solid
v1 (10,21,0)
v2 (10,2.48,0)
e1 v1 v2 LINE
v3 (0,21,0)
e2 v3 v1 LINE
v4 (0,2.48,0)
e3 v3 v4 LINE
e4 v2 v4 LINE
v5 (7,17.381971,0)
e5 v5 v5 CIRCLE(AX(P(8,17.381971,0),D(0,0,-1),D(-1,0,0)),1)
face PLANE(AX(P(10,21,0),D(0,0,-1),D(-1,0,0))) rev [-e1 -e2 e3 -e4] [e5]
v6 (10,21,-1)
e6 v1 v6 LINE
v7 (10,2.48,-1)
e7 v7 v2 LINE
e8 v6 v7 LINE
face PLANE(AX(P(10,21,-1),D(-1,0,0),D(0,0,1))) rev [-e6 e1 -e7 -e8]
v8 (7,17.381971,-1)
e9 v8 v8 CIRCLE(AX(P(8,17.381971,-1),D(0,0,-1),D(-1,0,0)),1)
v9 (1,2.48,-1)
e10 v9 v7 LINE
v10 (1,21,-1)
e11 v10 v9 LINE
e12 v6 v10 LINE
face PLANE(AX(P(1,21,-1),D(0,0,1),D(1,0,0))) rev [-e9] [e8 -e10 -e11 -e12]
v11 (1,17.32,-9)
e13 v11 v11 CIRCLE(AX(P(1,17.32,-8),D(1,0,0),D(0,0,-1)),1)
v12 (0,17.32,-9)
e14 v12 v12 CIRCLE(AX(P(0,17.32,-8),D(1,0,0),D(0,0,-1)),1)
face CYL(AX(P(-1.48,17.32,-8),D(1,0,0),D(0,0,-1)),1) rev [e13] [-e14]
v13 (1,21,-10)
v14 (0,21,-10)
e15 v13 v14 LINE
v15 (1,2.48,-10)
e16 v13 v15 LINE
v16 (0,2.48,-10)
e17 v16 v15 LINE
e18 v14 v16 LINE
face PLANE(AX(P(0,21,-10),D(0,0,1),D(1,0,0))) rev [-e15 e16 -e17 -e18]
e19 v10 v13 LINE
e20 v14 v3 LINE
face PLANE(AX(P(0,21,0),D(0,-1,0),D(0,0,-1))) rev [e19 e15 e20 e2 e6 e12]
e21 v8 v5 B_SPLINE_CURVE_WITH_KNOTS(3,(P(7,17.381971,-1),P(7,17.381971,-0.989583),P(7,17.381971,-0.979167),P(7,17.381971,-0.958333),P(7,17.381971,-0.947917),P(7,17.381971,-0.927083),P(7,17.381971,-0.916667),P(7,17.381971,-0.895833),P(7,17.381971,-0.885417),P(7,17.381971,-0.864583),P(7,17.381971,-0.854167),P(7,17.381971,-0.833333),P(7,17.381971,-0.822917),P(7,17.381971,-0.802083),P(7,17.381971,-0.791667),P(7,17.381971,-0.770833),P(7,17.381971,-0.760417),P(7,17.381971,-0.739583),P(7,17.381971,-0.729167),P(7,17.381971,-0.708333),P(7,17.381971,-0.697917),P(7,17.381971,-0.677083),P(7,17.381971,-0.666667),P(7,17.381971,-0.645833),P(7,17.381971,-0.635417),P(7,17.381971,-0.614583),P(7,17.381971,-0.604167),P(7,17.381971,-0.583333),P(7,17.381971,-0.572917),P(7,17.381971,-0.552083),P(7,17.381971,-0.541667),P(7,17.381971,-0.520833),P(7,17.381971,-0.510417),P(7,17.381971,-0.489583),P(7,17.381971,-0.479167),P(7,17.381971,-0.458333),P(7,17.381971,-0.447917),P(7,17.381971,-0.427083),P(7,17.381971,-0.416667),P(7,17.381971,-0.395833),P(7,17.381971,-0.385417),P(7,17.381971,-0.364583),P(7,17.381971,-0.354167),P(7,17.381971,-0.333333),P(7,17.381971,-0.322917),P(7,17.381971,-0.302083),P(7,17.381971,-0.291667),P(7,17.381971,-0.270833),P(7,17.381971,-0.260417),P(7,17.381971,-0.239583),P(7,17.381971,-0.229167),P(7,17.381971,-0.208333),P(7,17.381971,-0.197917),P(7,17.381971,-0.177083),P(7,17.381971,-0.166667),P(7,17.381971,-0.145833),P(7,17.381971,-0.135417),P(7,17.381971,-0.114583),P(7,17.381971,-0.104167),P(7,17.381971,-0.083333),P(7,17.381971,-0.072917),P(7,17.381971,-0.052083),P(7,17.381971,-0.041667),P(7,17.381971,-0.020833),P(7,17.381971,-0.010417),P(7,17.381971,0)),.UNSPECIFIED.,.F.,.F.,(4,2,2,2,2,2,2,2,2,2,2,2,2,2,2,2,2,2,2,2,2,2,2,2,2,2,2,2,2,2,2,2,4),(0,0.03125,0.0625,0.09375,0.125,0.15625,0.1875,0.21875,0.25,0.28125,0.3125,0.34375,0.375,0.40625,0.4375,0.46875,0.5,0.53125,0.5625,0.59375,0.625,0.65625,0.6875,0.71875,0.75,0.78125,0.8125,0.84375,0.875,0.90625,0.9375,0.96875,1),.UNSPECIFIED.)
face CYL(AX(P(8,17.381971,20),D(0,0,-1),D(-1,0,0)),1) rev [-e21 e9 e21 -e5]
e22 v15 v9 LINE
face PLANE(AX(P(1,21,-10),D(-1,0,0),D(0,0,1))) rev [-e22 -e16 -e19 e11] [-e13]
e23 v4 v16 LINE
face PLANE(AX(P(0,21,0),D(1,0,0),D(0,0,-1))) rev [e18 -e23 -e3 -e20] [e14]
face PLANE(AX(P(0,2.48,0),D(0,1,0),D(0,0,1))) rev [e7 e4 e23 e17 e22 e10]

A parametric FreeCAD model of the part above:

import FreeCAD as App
import Part
import Sketcher


def add_polygon(sketch, points):
    """Adds a closed chain of lines whose ends are joined by coincident constraints."""
    first, n = sketch.GeometryCount, len(points)
    for a, b in zip(points, points[1:] + points[:1]):
        sketch.addGeometry(Part.LineSegment(App.Vector(*a, 0), App.Vector(*b, 0)), False)
    for i in range(n):
        sketch.addConstraint(Sketcher.Constraint("Coincident", first + i, 2, first + (i + 1) % n, 1))

doc = App.newDocument("Part")
params = doc.addObject("Spreadsheet::Sheet", "Params")
for row, (alias, value) in enumerate([
    ("sketch1_width", "10 mm"),
    ("sketch1_width2", "9 mm"),
    ("pad1_length", "21 mm"),
    ("sketch2_diameter", "2 mm"),
    ("pocket1_length", "21 mm"),
    ("sketch3_width", "10 mm"),
    ("sketch3_width2", "1 mm"),
    ("pocket2_length", "2.48 mm"),
    ("sketch4_diameter", "2 mm"),
    ("pocket3_length", "2.48 mm"),
], start=1):
    params.set(f"A{row}", alias)
    params.set(f"B{row}", "=" + value)
    params.setAlias(f"B{row}", alias)

body = doc.addObject("PartDesign::Body", "Body")

# Sketch on XZ plane
sketch1 = body.newObject("Sketcher::SketchObject", "Sketch")
sketch1.AttachmentSupport = (doc.getObject("XZ_Plane"), [""])
sketch1.MapMode = "FlatFace"
add_polygon(sketch1, [(0, -10), (0, 0), (10, 0), (10, -1), (1, -1), (1, -10)])  # lines 0-5
sketch1.addConstraint([
    Sketcher.Constraint("Vertical", 0),
    Sketcher.Constraint("Horizontal", 1),
    Sketcher.Constraint("Vertical", 2),
    Sketcher.Constraint("Horizontal", 3),
    Sketcher.Constraint("Vertical", 4),
    Sketcher.Constraint("Horizontal", 5),
    Sketcher.Constraint("Coincident", 0, 2, -1, 1),
    Sketcher.Constraint("Equal", 1, 0),
    Sketcher.Constraint("Equal", 5, 2),
    Sketcher.Constraint("DistanceX", 1, 1, 1, 2, 10.0),
    Sketcher.Constraint("DistanceX", 3, 2, 3, 1, 9.0),
])
sketch1.setExpression("Constraints[15]", "Params.sketch1_width")
sketch1.setExpression("Constraints[16]", "Params.sketch1_width2")
pad1 = body.newObject("PartDesign::Pad", "Pad")
pad1.Profile = sketch1
pad1.setExpression("Length", "Params.pad1_length")
pad1.Reversed = True

# Sketch on XY plane
sketch2 = body.newObject("Sketcher::SketchObject", "Sketch001")
sketch2.AttachmentSupport = (doc.getObject("XY_Plane"), [""])
sketch2.MapMode = "FlatFace"
sketch2.AttachmentOffset = App.Placement(App.Vector(0, 0, -1), App.Rotation())
sketch2.addGeometry(Part.Circle(App.Vector(8, 17.4, 0), App.Vector(0, 0, 1), 1), False)
sketch2.addConstraint([
    Sketcher.Constraint("Diameter", 0, 2.0),
    Sketcher.Constraint("DistanceX", -1, 1, 0, 3, 8.0),
    Sketcher.Constraint("DistanceY", -1, 1, 0, 3, 17.381971),
])
sketch2.setExpression("Constraints[0]", "Params.sketch2_diameter")
pocket1 = body.newObject("PartDesign::Pocket", "Pocket")
pocket1.Profile = sketch2
pocket1.setExpression("Length", "Params.pocket1_length")
pocket1.Reversed = True

# Sketch on XZ plane
sketch3 = body.newObject("Sketcher::SketchObject", "Sketch002")
sketch3.AttachmentSupport = (doc.getObject("XZ_Plane"), [""])
sketch3.MapMode = "FlatFace"
add_polygon(sketch3, [(10, -1), (10, 0), (0, 0), (0, -10), (1, -10), (1, -1)])  # lines 0-5
sketch3.addConstraint([
    Sketcher.Constraint("Vertical", 0),
    Sketcher.Constraint("Horizontal", 1),
    Sketcher.Constraint("Vertical", 2),
    Sketcher.Constraint("Horizontal", 3),
    Sketcher.Constraint("Vertical", 4),
    Sketcher.Constraint("Horizontal", 5),
    Sketcher.Constraint("Coincident", 1, 2, -1, 1),
    Sketcher.Constraint("Equal", 3, 0),
    Sketcher.Constraint("Equal", 1, 2),
    Sketcher.Constraint("DistanceX", 1, 2, 1, 1, 10.0),
    Sketcher.Constraint("DistanceX", 3, 1, 3, 2, 1.0),
])
sketch3.setExpression("Constraints[15]", "Params.sketch3_width")
sketch3.setExpression("Constraints[16]", "Params.sketch3_width2")
pocket2 = body.newObject("PartDesign::Pocket", "Pocket001")
pocket2.Profile = sketch3
pocket2.setExpression("Length", "Params.pocket2_length")

# Sketch on YZ plane
sketch4 = body.newObject("Sketcher::SketchObject", "Sketch003")
sketch4.AttachmentSupport = (doc.getObject("YZ_Plane"), [""])
sketch4.MapMode = "FlatFace"
sketch4.AttachmentOffset = App.Placement(App.Vector(0, 0, 1), App.Rotation())
sketch4.addGeometry(Part.Circle(App.Vector(17.3, -8, 0), App.Vector(0, 0, 1), 1), False)
sketch4.addConstraint([
    Sketcher.Constraint("Diameter", 0, 2.0),
    Sketcher.Constraint("DistanceY", 0, 3, -1, 1, 8.0),
    Sketcher.Constraint("DistanceX", -1, 1, 0, 3, 17.32),
])
sketch4.setExpression("Constraints[0]", "Params.sketch4_diameter")
pocket3 = body.newObject("PartDesign::Pocket", "Pocket002")
pocket3.Profile = sketch4
pocket3.setExpression("Length", "Params.pocket3_length")

doc.recompute()
